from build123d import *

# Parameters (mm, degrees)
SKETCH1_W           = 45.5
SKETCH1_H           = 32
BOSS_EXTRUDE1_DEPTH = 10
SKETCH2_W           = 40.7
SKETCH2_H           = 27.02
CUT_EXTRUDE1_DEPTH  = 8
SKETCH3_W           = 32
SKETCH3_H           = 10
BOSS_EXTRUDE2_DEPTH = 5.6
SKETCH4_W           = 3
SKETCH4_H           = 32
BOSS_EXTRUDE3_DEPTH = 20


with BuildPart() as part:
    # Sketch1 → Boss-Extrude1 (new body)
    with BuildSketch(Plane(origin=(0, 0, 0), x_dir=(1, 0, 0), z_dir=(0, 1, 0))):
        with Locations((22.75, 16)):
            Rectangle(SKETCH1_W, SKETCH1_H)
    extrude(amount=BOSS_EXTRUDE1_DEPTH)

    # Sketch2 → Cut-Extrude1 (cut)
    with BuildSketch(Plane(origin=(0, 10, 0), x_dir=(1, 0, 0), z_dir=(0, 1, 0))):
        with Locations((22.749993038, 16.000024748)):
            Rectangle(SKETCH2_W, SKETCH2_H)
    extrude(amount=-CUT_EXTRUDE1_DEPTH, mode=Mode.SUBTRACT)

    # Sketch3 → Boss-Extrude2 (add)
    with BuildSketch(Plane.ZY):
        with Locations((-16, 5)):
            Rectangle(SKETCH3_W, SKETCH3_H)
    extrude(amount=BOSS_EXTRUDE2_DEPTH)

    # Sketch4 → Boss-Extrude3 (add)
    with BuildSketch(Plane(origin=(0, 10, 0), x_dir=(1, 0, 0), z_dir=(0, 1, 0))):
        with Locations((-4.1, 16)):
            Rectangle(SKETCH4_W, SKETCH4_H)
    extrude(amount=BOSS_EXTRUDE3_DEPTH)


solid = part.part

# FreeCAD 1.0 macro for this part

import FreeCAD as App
import Part
import Sketcher

doc = App.newDocument("Part")
body = doc.addObject("PartDesign::Body", "Body")

sketch1 = doc.addObject("Sketcher::SketchObject", "Sketch")
body.addObject(sketch1)
sketch1.AttachmentSupport = (doc.XZ_Plane, [""])
sketch1.MapMode = "FlatFace"
sketch1.addGeometry(Part.LineSegment(App.Vector(0, -32, 0), App.Vector(0, 0, 0)), False)
sketch1.addGeometry(Part.LineSegment(App.Vector(0, 0, 0), App.Vector(45.5, 0, 0)), False)
sketch1.addGeometry(Part.LineSegment(App.Vector(45.5, 0, 0), App.Vector(45.5, -32, 0)), False)
sketch1.addGeometry(Part.LineSegment(App.Vector(45.5, -32, 0), App.Vector(0, -32, 0)), False)
sketch1.addConstraint(Sketcher.Constraint("Coincident", 0, 2, 1, 1))
sketch1.addConstraint(Sketcher.Constraint("Coincident", 1, 2, 2, 1))
sketch1.addConstraint(Sketcher.Constraint("Coincident", 2, 2, 3, 1))
sketch1.addConstraint(Sketcher.Constraint("Coincident", 3, 2, 0, 1))
sketch1.addConstraint(Sketcher.Constraint("Vertical", 0))
sketch1.addConstraint(Sketcher.Constraint("Horizontal", 1))
sketch1.addConstraint(Sketcher.Constraint("Vertical", 2))
sketch1.addConstraint(Sketcher.Constraint("Horizontal", 3))
sketch1.addConstraint(Sketcher.Constraint("Coincident", 0, 2, -1, 1))
sketch1.addConstraint(Sketcher.Constraint("DistanceY", 0, 1, 0, 2, 32.0))
sketch1.addConstraint(Sketcher.Constraint("DistanceX", 1, 1, 1, 2, 45.5))
pad1 = doc.addObject("PartDesign::Pad", "Pad")
body.addObject(pad1)
pad1.Profile = sketch1
pad1.Length = 10
pad1.Reversed = True

sketch2 = doc.addObject("Sketcher::SketchObject", "Sketch001")
body.addObject(sketch2)
sketch2.AttachmentSupport = (doc.XZ_Plane, [""])
sketch2.MapMode = "FlatFace"
sketch2.AttachmentOffset = App.Placement(App.Vector(0, 0, -10), App.Rotation())
sketch2.addGeometry(Part.LineSegment(App.Vector(2.399993, -29.510025, 0), App.Vector(2.399993, -2.490025, 0)), False)
sketch2.addGeometry(Part.LineSegment(App.Vector(2.399993, -2.490025, 0), App.Vector(43.099993, -2.490025, 0)), False)
sketch2.addGeometry(Part.LineSegment(App.Vector(43.099993, -2.490025, 0), App.Vector(43.099993, -29.510025, 0)), False)
sketch2.addGeometry(Part.LineSegment(App.Vector(43.099993, -29.510025, 0), App.Vector(2.399993, -29.510025, 0)), False)
sketch2.addConstraint(Sketcher.Constraint("Coincident", 0, 2, 1, 1))
sketch2.addConstraint(Sketcher.Constraint("Coincident", 1, 2, 2, 1))
sketch2.addConstraint(Sketcher.Constraint("Coincident", 2, 2, 3, 1))
sketch2.addConstraint(Sketcher.Constraint("Coincident", 3, 2, 0, 1))
sketch2.addConstraint(Sketcher.Constraint("Vertical", 0))
sketch2.addConstraint(Sketcher.Constraint("Horizontal", 1))
sketch2.addConstraint(Sketcher.Constraint("Vertical", 2))
sketch2.addConstraint(Sketcher.Constraint("Horizontal", 3))
sketch2.addConstraint(Sketcher.Constraint("DistanceX", 1, 1, 1, 2, 40.7))
sketch2.addConstraint(Sketcher.Constraint("DistanceY", 0, 1, 0, 2, 27.02))
sketch2.addConstraint(Sketcher.Constraint("DistanceX", -1, 1, 0, 2, 2.399993))
sketch2.addConstraint(Sketcher.Constraint("DistanceY", 0, 2, -1, 1, 2.490025))
pocket1 = doc.addObject("PartDesign::Pocket", "Pocket")
body.addObject(pocket1)
pocket1.Profile = sketch2
pocket1.Length = 8
pocket1.Reversed = True

sketch3 = doc.addObject("Sketcher::SketchObject", "Sketch002")
body.addObject(sketch3)
sketch3.AttachmentSupport = (doc.YZ_Plane, [""])
sketch3.MapMode = "FlatFace"
sketch3.addGeometry(Part.LineSegment(App.Vector(10, -32, 0), App.Vector(0, -32, 0)), False)
sketch3.addGeometry(Part.LineSegment(App.Vector(0, -32, 0), App.Vector(0, 0, 0)), False)
sketch3.addGeometry(Part.LineSegment(App.Vector(0, 0, 0), App.Vector(10, 0, 0)), False)
sketch3.addGeometry(Part.LineSegment(App.Vector(10, 0, 0), App.Vector(10, -32, 0)), False)
sketch3.addConstraint(Sketcher.Constraint("Coincident", 0, 2, 1, 1))
sketch3.addConstraint(Sketcher.Constraint("Coincident", 1, 2, 2, 1))
sketch3.addConstraint(Sketcher.Constraint("Coincident", 2, 2, 3, 1))
sketch3.addConstraint(Sketcher.Constraint("Coincident", 3, 2, 0, 1))
sketch3.addConstraint(Sketcher.Constraint("Horizontal", 0))
sketch3.addConstraint(Sketcher.Constraint("Vertical", 1))
sketch3.addConstraint(Sketcher.Constraint("Horizontal", 2))
sketch3.addConstraint(Sketcher.Constraint("Vertical", 3))
sketch3.addConstraint(Sketcher.Constraint("Coincident", 1, 2, -1, 1))
sketch3.addConstraint(Sketcher.Constraint("DistanceX", 0, 2, 0, 1, 10.0))
sketch3.addConstraint(Sketcher.Constraint("DistanceY", 1, 1, 1, 2, 32.0))
pad2 = doc.addObject("PartDesign::Pad", "Pad001")
body.addObject(pad2)
pad2.Profile = sketch3
pad2.Length = 5.6
pad2.Reversed = True

sketch4 = doc.addObject("Sketcher::SketchObject", "Sketch003")
body.addObject(sketch4)
sketch4.AttachmentSupport = (doc.XZ_Plane, [""])
sketch4.MapMode = "FlatFace"
sketch4.AttachmentOffset = App.Placement(App.Vector(0, 0, -10), App.Rotation())
sketch4.addGeometry(Part.LineSegment(App.Vector(-5.6, -32, 0), App.Vector(-5.6, 0, 0)), False)
sketch4.addGeometry(Part.LineSegment(App.Vector(-5.6, 0, 0), App.Vector(-2.6, 0, 0)), False)
sketch4.addGeometry(Part.LineSegment(App.Vector(-2.6, 0, 0), App.Vector(-2.6, -32, 0)), False)
sketch4.addGeometry(Part.LineSegment(App.Vector(-2.6, -32, 0), App.Vector(-5.6, -32, 0)), False)
sketch4.addConstraint(Sketcher.Constraint("Coincident", 0, 2, 1, 1))
sketch4.addConstraint(Sketcher.Constraint("Coincident", 1, 2, 2, 1))
sketch4.addConstraint(Sketcher.Constraint("Coincident", 2, 2, 3, 1))
sketch4.addConstraint(Sketcher.Constraint("Coincident", 3, 2, 0, 1))
sketch4.addConstraint(Sketcher.Constraint("Vertical", 0))
sketch4.addConstraint(Sketcher.Constraint("Horizontal", 1))
sketch4.addConstraint(Sketcher.Constraint("Vertical", 2))
sketch4.addConstraint(Sketcher.Constraint("Horizontal", 3))
sketch4.addConstraint(Sketcher.Constraint("PointOnObject", 0, 2, -1))
sketch4.addConstraint(Sketcher.Constraint("DistanceX", 1, 1, 1, 2, 3.0))
sketch4.addConstraint(Sketcher.Constraint("DistanceY", 0, 1, 0, 2, 32.0))
sketch4.addConstraint(Sketcher.Constraint("DistanceX", 0, 2, -1, 1, 5.6))
pad3 = doc.addObject("PartDesign::Pad", "Pad002")
body.addObject(pad3)
pad3.Profile = sketch4
pad3.Length = 20
pad3.Reversed = True

doc.recompute()
